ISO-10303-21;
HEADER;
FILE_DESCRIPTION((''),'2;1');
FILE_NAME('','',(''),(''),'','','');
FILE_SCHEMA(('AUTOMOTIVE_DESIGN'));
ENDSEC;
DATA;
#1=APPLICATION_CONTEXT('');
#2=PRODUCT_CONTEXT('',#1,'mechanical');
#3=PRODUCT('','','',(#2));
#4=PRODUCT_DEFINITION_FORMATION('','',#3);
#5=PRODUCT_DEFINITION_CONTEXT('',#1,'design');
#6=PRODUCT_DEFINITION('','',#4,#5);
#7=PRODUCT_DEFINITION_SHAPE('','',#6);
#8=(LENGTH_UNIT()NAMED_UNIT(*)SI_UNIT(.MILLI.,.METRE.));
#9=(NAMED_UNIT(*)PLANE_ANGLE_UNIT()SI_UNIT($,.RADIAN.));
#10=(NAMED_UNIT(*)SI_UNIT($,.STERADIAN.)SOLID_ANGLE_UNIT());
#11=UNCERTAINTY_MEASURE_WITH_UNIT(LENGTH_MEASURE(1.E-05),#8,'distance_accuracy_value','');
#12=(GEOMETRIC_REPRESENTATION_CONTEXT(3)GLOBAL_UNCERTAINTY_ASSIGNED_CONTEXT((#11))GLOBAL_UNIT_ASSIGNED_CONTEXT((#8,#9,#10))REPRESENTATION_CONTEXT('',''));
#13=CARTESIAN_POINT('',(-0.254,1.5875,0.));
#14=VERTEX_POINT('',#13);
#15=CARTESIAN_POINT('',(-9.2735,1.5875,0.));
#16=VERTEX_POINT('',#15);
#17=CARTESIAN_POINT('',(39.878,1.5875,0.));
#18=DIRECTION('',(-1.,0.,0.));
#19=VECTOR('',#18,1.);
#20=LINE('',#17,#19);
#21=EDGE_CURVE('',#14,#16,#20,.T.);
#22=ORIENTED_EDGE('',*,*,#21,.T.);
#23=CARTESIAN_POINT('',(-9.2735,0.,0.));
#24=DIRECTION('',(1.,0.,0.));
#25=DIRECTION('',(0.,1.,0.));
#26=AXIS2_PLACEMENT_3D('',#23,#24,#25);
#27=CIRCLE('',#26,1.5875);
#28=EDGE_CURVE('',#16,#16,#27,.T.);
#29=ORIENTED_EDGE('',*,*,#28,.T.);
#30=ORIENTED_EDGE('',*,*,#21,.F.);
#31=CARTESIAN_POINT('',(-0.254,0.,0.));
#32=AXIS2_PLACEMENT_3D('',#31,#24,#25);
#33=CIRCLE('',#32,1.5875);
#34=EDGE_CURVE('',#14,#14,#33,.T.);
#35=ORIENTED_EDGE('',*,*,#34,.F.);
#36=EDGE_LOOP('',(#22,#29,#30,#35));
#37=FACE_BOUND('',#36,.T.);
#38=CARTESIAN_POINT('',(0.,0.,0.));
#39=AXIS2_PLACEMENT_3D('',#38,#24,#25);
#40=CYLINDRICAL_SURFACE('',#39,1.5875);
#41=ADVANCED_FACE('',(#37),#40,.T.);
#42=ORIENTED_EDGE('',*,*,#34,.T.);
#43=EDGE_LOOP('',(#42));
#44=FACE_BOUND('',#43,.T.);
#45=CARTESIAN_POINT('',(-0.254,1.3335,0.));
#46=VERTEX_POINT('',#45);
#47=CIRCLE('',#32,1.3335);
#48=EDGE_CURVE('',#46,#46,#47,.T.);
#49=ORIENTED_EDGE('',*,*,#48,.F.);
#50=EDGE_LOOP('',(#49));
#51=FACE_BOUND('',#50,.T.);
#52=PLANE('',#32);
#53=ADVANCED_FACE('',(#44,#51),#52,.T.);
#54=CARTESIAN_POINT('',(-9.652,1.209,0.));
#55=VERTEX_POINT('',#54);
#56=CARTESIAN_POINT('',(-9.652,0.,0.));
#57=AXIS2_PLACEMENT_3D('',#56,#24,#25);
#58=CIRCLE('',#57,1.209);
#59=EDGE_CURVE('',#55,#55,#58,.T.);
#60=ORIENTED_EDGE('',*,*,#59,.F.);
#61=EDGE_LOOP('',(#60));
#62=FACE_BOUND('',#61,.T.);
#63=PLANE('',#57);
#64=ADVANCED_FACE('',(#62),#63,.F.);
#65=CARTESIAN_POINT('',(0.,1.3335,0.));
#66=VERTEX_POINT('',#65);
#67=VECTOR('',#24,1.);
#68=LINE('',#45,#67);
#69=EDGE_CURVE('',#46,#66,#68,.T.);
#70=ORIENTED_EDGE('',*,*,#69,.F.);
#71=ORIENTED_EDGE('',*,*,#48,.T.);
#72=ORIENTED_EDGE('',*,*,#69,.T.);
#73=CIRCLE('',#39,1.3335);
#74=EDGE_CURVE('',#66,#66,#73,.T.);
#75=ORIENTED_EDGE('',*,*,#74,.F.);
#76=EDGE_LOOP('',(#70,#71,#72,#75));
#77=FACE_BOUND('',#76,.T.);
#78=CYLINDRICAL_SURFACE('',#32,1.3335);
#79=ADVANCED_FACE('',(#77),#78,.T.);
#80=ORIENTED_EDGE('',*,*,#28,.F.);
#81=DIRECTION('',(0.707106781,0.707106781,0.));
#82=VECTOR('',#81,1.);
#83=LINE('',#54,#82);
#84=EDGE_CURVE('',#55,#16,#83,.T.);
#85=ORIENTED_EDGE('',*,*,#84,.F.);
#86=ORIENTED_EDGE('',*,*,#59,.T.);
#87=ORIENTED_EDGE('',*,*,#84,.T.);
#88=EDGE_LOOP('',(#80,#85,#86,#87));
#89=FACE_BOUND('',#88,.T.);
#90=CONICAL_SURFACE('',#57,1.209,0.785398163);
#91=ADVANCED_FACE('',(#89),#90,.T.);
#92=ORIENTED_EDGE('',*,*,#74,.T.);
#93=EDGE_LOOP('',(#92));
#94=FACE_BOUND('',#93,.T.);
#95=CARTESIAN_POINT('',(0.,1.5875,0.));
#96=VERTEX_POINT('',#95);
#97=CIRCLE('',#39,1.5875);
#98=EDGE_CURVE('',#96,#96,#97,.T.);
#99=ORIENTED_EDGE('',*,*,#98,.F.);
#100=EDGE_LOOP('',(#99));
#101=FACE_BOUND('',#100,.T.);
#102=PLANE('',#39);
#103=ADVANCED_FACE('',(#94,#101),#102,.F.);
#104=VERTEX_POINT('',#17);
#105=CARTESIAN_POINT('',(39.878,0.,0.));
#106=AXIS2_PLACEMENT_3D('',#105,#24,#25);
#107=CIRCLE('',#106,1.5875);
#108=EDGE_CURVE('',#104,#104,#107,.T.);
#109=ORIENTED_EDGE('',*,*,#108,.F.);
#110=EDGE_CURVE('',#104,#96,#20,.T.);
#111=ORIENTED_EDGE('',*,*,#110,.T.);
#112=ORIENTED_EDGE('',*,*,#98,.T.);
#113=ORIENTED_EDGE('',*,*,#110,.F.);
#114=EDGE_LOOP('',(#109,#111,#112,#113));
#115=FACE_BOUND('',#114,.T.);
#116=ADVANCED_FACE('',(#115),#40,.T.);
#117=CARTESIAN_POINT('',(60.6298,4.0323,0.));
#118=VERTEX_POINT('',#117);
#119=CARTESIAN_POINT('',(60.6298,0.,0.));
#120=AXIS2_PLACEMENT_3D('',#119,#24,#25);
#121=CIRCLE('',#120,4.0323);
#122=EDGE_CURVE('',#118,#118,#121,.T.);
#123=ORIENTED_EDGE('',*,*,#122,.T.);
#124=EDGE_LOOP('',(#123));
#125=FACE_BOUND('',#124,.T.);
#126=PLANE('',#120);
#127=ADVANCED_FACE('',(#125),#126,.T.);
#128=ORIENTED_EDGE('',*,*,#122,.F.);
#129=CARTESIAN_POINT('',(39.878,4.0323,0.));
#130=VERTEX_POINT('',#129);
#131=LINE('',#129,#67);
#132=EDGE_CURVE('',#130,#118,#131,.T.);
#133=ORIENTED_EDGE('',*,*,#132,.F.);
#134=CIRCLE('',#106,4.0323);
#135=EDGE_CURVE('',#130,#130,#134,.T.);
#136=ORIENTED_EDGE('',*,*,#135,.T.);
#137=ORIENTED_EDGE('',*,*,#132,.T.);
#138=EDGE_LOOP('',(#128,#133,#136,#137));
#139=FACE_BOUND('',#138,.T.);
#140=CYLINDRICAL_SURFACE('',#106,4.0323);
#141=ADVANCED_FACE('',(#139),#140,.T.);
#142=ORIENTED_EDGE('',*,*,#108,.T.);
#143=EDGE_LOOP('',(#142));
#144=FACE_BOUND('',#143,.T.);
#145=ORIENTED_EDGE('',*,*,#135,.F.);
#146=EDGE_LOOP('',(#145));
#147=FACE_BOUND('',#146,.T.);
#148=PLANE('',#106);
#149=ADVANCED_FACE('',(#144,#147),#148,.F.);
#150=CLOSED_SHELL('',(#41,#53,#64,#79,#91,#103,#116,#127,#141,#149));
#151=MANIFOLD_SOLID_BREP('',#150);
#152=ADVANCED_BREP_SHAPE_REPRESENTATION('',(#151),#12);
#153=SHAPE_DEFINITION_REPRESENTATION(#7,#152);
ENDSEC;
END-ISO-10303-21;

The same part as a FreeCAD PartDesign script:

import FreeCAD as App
import Part
import Sketcher

V = App.Vector
Q = App.Units.Quantity

doc = App.newDocument("Part")
params = doc.addObject("Spreadsheet::Sheet", "Params")
for row, (alias, value) in enumerate([
    ("sketch1_width", "1.57 in"),
    ("sketch1_width2", "2.387 in"),
    ("sketch1_height", "0.0625 in"),
    ("revolution_angle", "360 deg"),
    ("sketch2_width", "0.38 in"),
    ("sketch2_height", "0.0625 in"),
    ("revolution2_angle", "360 deg"),
    ("sketch3_width", "0.01 in"),
    ("sketch3_height", "0.02 in"),
    ("groove_angle", "360 deg"),
], start=1):
    params.set(f"A{row}", alias)
    params.set(f"B{row}", "=" + value)
    params.setAlias(f"B{row}", alias)

body = doc.addObject("PartDesign::Body", "Body")

# Sketch on XY plane
sketch1 = doc.addObject("Sketcher::SketchObject", "Sketch")
body.addObject(sketch1)
sketch1.AttachmentSupport = (doc.XY_Plane, [""])
sketch1.MapMode = "FlatFace"
sketch1.addGeometry(Part.LineSegment(V(0, 0, 0), V(60.6, 0, 0)), False)
sketch1.addGeometry(Part.LineSegment(V(60.6, 0, 0), V(60.6, 4, 0)), False)
sketch1.addGeometry(Part.LineSegment(V(60.6, 4, 0), V(39.9, 4, 0)), False)
sketch1.addGeometry(Part.LineSegment(V(39.9, 4, 0), V(39.9, 1.6, 0)), False)
sketch1.addGeometry(Part.LineSegment(V(39.9, 1.6, 0), V(0, 1.6, 0)), False)
sketch1.addGeometry(Part.LineSegment(V(0, 1.6, 0), V(0, 0, 0)), False)
sketch1.addConstraint(Sketcher.Constraint("Coincident", 0, 2, 1, 1))
sketch1.addConstraint(Sketcher.Constraint("Coincident", 1, 2, 2, 1))
sketch1.addConstraint(Sketcher.Constraint("Coincident", 2, 2, 3, 1))
sketch1.addConstraint(Sketcher.Constraint("Coincident", 3, 2, 4, 1))
sketch1.addConstraint(Sketcher.Constraint("Coincident", 4, 2, 5, 1))
sketch1.addConstraint(Sketcher.Constraint("Coincident", 5, 2, 0, 1))
sketch1.addConstraint(Sketcher.Constraint("Horizontal", 0))
sketch1.addConstraint(Sketcher.Constraint("Vertical", 1))
sketch1.addConstraint(Sketcher.Constraint("Horizontal", 2))
sketch1.addConstraint(Sketcher.Constraint("Vertical", 3))
sketch1.addConstraint(Sketcher.Constraint("Horizontal", 4))
sketch1.addConstraint(Sketcher.Constraint("Vertical", 5))
sketch1.addConstraint(Sketcher.Constraint("Coincident", 5, 2, -1, 1))
sketch1.addConstraint(Sketcher.Constraint("DistanceX", 4, 2, 4, 1, Q("1.57 in")))
sketch1.addConstraint(Sketcher.Constraint("DistanceX", 0, 1, 0, 2, Q("2.387 in")))
sketch1.addConstraint(Sketcher.Constraint("DistanceY", 5, 2, 5, 1, Q("0.0625 in")))
sketch1.addConstraint(Sketcher.Constraint("DistanceY", 1, 1, 1, 2, Q("4.0323 mm")))
sketch1.setExpression("Constraints[13]", "Params.sketch1_width")
sketch1.setExpression("Constraints[14]", "Params.sketch1_width2")
sketch1.setExpression("Constraints[15]", "Params.sketch1_height")
revolution = doc.addObject("PartDesign::Revolution", "Revolution")
body.addObject(revolution)
revolution.Profile = sketch1
revolution.ReferenceAxis = (sketch1, ["H_Axis"])
revolution.setExpression("Angle", "Params.revolution_angle")

# Sketch on XY plane
sketch2 = doc.addObject("Sketcher::SketchObject", "Sketch001")
body.addObject(sketch2)
sketch2.AttachmentSupport = (doc.XY_Plane, [""])
sketch2.MapMode = "FlatFace"
sketch2.addGeometry(Part.LineSegment(V(-9.7, 0, 0), V(0, 0, 0)), False)
sketch2.addGeometry(Part.LineSegment(V(0, 0, 0), V(0, 1.6, 0)), False)
sketch2.addGeometry(Part.LineSegment(V(0, 1.6, 0), V(-9.3, 1.6, 0)), False)
sketch2.addGeometry(Part.LineSegment(V(-9.3, 1.6, 0), V(-9.7, 1.2, 0)), False)
sketch2.addGeometry(Part.LineSegment(V(-9.7, 1.2, 0), V(-9.7, 0, 0)), False)
sketch2.addConstraint(Sketcher.Constraint("Coincident", 0, 2, 1, 1))
sketch2.addConstraint(Sketcher.Constraint("Coincident", 1, 2, 2, 1))
sketch2.addConstraint(Sketcher.Constraint("Coincident", 2, 2, 3, 1))
sketch2.addConstraint(Sketcher.Constraint("Coincident", 3, 2, 4, 1))
sketch2.addConstraint(Sketcher.Constraint("Coincident", 4, 2, 0, 1))
sketch2.addConstraint(Sketcher.Constraint("Horizontal", 0))
sketch2.addConstraint(Sketcher.Constraint("Vertical", 1))
sketch2.addConstraint(Sketcher.Constraint("Horizontal", 2))
sketch2.addConstraint(Sketcher.Constraint("Vertical", 4))
sketch2.addConstraint(Sketcher.Constraint("Coincident", 0, 2, -1, 1))
sketch2.addConstraint(Sketcher.Constraint("Angle", 3, Q("-135 deg")))
sketch2.addConstraint(Sketcher.Constraint("DistanceX", 0, 1, 0, 2, Q("0.38 in")))
sketch2.addConstraint(Sketcher.Constraint("DistanceY", 1, 1, 1, 2, Q("0.0625 in")))
sketch2.addConstraint(Sketcher.Constraint("DistanceX", 2, 2, 2, 1, Q("0.3651 in")))
sketch2.setExpression("Constraints[11]", "Params.sketch2_width")
sketch2.setExpression("Constraints[12]", "Params.sketch2_height")
revolution2 = doc.addObject("PartDesign::Revolution", "Revolution001")
body.addObject(revolution2)
revolution2.Profile = sketch2
revolution2.ReferenceAxis = (sketch2, ["H_Axis"])
revolution2.setExpression("Angle", "Params.revolution2_angle")

# Sketch on XY plane
sketch3 = doc.addObject("Sketcher::SketchObject", "Sketch002")
body.addObject(sketch3)
sketch3.AttachmentSupport = (doc.XY_Plane, [""])
sketch3.MapMode = "FlatFace"
sketch3.addGeometry(Part.LineSegment(V(-0.25, 1.84, 0), V(-0.25, 1.33, 0)), False)
sketch3.addGeometry(Part.LineSegment(V(-0.25, 1.33, 0), V(0, 1.33, 0)), False)
sketch3.addGeometry(Part.LineSegment(V(0, 1.33, 0), V(0, 1.84, 0)), False)
sketch3.addGeometry(Part.LineSegment(V(0, 1.84, 0), V(-0.25, 1.84, 0)), False)
sketch3.addConstraint(Sketcher.Constraint("Coincident", 0, 2, 1, 1))
sketch3.addConstraint(Sketcher.Constraint("Coincident", 1, 2, 2, 1))
sketch3.addConstraint(Sketcher.Constraint("Coincident", 2, 2, 3, 1))
sketch3.addConstraint(Sketcher.Constraint("Coincident", 3, 2, 0, 1))
sketch3.addConstraint(Sketcher.Constraint("Vertical", 0))
sketch3.addConstraint(Sketcher.Constraint("Horizontal", 1))
sketch3.addConstraint(Sketcher.Constraint("Vertical", 2))
sketch3.addConstraint(Sketcher.Constraint("Horizontal", 3))
sketch3.addConstraint(Sketcher.Constraint("PointOnObject", 1, 2, -2))
sketch3.addConstraint(Sketcher.Constraint("DistanceX", 1, 1, 1, 2, Q("0.01 in")))
sketch3.addConstraint(Sketcher.Constraint("DistanceY", 0, 2, 0, 1, Q("0.02 in")))
sketch3.addConstraint(Sketcher.Constraint("DistanceY", -1, 1, 0, 2, Q("0.0525 in")))
sketch3.setExpression("Constraints[9]", "Params.sketch3_width")
sketch3.setExpression("Constraints[10]", "Params.sketch3_height")
groove = doc.addObject("PartDesign::Groove", "Groove")
body.addObject(groove)
groove.Profile = sketch3
groove.ReferenceAxis = (sketch3, ["H_Axis"])
groove.setExpression("Angle", "Params.groove_angle")

doc.recompute()
